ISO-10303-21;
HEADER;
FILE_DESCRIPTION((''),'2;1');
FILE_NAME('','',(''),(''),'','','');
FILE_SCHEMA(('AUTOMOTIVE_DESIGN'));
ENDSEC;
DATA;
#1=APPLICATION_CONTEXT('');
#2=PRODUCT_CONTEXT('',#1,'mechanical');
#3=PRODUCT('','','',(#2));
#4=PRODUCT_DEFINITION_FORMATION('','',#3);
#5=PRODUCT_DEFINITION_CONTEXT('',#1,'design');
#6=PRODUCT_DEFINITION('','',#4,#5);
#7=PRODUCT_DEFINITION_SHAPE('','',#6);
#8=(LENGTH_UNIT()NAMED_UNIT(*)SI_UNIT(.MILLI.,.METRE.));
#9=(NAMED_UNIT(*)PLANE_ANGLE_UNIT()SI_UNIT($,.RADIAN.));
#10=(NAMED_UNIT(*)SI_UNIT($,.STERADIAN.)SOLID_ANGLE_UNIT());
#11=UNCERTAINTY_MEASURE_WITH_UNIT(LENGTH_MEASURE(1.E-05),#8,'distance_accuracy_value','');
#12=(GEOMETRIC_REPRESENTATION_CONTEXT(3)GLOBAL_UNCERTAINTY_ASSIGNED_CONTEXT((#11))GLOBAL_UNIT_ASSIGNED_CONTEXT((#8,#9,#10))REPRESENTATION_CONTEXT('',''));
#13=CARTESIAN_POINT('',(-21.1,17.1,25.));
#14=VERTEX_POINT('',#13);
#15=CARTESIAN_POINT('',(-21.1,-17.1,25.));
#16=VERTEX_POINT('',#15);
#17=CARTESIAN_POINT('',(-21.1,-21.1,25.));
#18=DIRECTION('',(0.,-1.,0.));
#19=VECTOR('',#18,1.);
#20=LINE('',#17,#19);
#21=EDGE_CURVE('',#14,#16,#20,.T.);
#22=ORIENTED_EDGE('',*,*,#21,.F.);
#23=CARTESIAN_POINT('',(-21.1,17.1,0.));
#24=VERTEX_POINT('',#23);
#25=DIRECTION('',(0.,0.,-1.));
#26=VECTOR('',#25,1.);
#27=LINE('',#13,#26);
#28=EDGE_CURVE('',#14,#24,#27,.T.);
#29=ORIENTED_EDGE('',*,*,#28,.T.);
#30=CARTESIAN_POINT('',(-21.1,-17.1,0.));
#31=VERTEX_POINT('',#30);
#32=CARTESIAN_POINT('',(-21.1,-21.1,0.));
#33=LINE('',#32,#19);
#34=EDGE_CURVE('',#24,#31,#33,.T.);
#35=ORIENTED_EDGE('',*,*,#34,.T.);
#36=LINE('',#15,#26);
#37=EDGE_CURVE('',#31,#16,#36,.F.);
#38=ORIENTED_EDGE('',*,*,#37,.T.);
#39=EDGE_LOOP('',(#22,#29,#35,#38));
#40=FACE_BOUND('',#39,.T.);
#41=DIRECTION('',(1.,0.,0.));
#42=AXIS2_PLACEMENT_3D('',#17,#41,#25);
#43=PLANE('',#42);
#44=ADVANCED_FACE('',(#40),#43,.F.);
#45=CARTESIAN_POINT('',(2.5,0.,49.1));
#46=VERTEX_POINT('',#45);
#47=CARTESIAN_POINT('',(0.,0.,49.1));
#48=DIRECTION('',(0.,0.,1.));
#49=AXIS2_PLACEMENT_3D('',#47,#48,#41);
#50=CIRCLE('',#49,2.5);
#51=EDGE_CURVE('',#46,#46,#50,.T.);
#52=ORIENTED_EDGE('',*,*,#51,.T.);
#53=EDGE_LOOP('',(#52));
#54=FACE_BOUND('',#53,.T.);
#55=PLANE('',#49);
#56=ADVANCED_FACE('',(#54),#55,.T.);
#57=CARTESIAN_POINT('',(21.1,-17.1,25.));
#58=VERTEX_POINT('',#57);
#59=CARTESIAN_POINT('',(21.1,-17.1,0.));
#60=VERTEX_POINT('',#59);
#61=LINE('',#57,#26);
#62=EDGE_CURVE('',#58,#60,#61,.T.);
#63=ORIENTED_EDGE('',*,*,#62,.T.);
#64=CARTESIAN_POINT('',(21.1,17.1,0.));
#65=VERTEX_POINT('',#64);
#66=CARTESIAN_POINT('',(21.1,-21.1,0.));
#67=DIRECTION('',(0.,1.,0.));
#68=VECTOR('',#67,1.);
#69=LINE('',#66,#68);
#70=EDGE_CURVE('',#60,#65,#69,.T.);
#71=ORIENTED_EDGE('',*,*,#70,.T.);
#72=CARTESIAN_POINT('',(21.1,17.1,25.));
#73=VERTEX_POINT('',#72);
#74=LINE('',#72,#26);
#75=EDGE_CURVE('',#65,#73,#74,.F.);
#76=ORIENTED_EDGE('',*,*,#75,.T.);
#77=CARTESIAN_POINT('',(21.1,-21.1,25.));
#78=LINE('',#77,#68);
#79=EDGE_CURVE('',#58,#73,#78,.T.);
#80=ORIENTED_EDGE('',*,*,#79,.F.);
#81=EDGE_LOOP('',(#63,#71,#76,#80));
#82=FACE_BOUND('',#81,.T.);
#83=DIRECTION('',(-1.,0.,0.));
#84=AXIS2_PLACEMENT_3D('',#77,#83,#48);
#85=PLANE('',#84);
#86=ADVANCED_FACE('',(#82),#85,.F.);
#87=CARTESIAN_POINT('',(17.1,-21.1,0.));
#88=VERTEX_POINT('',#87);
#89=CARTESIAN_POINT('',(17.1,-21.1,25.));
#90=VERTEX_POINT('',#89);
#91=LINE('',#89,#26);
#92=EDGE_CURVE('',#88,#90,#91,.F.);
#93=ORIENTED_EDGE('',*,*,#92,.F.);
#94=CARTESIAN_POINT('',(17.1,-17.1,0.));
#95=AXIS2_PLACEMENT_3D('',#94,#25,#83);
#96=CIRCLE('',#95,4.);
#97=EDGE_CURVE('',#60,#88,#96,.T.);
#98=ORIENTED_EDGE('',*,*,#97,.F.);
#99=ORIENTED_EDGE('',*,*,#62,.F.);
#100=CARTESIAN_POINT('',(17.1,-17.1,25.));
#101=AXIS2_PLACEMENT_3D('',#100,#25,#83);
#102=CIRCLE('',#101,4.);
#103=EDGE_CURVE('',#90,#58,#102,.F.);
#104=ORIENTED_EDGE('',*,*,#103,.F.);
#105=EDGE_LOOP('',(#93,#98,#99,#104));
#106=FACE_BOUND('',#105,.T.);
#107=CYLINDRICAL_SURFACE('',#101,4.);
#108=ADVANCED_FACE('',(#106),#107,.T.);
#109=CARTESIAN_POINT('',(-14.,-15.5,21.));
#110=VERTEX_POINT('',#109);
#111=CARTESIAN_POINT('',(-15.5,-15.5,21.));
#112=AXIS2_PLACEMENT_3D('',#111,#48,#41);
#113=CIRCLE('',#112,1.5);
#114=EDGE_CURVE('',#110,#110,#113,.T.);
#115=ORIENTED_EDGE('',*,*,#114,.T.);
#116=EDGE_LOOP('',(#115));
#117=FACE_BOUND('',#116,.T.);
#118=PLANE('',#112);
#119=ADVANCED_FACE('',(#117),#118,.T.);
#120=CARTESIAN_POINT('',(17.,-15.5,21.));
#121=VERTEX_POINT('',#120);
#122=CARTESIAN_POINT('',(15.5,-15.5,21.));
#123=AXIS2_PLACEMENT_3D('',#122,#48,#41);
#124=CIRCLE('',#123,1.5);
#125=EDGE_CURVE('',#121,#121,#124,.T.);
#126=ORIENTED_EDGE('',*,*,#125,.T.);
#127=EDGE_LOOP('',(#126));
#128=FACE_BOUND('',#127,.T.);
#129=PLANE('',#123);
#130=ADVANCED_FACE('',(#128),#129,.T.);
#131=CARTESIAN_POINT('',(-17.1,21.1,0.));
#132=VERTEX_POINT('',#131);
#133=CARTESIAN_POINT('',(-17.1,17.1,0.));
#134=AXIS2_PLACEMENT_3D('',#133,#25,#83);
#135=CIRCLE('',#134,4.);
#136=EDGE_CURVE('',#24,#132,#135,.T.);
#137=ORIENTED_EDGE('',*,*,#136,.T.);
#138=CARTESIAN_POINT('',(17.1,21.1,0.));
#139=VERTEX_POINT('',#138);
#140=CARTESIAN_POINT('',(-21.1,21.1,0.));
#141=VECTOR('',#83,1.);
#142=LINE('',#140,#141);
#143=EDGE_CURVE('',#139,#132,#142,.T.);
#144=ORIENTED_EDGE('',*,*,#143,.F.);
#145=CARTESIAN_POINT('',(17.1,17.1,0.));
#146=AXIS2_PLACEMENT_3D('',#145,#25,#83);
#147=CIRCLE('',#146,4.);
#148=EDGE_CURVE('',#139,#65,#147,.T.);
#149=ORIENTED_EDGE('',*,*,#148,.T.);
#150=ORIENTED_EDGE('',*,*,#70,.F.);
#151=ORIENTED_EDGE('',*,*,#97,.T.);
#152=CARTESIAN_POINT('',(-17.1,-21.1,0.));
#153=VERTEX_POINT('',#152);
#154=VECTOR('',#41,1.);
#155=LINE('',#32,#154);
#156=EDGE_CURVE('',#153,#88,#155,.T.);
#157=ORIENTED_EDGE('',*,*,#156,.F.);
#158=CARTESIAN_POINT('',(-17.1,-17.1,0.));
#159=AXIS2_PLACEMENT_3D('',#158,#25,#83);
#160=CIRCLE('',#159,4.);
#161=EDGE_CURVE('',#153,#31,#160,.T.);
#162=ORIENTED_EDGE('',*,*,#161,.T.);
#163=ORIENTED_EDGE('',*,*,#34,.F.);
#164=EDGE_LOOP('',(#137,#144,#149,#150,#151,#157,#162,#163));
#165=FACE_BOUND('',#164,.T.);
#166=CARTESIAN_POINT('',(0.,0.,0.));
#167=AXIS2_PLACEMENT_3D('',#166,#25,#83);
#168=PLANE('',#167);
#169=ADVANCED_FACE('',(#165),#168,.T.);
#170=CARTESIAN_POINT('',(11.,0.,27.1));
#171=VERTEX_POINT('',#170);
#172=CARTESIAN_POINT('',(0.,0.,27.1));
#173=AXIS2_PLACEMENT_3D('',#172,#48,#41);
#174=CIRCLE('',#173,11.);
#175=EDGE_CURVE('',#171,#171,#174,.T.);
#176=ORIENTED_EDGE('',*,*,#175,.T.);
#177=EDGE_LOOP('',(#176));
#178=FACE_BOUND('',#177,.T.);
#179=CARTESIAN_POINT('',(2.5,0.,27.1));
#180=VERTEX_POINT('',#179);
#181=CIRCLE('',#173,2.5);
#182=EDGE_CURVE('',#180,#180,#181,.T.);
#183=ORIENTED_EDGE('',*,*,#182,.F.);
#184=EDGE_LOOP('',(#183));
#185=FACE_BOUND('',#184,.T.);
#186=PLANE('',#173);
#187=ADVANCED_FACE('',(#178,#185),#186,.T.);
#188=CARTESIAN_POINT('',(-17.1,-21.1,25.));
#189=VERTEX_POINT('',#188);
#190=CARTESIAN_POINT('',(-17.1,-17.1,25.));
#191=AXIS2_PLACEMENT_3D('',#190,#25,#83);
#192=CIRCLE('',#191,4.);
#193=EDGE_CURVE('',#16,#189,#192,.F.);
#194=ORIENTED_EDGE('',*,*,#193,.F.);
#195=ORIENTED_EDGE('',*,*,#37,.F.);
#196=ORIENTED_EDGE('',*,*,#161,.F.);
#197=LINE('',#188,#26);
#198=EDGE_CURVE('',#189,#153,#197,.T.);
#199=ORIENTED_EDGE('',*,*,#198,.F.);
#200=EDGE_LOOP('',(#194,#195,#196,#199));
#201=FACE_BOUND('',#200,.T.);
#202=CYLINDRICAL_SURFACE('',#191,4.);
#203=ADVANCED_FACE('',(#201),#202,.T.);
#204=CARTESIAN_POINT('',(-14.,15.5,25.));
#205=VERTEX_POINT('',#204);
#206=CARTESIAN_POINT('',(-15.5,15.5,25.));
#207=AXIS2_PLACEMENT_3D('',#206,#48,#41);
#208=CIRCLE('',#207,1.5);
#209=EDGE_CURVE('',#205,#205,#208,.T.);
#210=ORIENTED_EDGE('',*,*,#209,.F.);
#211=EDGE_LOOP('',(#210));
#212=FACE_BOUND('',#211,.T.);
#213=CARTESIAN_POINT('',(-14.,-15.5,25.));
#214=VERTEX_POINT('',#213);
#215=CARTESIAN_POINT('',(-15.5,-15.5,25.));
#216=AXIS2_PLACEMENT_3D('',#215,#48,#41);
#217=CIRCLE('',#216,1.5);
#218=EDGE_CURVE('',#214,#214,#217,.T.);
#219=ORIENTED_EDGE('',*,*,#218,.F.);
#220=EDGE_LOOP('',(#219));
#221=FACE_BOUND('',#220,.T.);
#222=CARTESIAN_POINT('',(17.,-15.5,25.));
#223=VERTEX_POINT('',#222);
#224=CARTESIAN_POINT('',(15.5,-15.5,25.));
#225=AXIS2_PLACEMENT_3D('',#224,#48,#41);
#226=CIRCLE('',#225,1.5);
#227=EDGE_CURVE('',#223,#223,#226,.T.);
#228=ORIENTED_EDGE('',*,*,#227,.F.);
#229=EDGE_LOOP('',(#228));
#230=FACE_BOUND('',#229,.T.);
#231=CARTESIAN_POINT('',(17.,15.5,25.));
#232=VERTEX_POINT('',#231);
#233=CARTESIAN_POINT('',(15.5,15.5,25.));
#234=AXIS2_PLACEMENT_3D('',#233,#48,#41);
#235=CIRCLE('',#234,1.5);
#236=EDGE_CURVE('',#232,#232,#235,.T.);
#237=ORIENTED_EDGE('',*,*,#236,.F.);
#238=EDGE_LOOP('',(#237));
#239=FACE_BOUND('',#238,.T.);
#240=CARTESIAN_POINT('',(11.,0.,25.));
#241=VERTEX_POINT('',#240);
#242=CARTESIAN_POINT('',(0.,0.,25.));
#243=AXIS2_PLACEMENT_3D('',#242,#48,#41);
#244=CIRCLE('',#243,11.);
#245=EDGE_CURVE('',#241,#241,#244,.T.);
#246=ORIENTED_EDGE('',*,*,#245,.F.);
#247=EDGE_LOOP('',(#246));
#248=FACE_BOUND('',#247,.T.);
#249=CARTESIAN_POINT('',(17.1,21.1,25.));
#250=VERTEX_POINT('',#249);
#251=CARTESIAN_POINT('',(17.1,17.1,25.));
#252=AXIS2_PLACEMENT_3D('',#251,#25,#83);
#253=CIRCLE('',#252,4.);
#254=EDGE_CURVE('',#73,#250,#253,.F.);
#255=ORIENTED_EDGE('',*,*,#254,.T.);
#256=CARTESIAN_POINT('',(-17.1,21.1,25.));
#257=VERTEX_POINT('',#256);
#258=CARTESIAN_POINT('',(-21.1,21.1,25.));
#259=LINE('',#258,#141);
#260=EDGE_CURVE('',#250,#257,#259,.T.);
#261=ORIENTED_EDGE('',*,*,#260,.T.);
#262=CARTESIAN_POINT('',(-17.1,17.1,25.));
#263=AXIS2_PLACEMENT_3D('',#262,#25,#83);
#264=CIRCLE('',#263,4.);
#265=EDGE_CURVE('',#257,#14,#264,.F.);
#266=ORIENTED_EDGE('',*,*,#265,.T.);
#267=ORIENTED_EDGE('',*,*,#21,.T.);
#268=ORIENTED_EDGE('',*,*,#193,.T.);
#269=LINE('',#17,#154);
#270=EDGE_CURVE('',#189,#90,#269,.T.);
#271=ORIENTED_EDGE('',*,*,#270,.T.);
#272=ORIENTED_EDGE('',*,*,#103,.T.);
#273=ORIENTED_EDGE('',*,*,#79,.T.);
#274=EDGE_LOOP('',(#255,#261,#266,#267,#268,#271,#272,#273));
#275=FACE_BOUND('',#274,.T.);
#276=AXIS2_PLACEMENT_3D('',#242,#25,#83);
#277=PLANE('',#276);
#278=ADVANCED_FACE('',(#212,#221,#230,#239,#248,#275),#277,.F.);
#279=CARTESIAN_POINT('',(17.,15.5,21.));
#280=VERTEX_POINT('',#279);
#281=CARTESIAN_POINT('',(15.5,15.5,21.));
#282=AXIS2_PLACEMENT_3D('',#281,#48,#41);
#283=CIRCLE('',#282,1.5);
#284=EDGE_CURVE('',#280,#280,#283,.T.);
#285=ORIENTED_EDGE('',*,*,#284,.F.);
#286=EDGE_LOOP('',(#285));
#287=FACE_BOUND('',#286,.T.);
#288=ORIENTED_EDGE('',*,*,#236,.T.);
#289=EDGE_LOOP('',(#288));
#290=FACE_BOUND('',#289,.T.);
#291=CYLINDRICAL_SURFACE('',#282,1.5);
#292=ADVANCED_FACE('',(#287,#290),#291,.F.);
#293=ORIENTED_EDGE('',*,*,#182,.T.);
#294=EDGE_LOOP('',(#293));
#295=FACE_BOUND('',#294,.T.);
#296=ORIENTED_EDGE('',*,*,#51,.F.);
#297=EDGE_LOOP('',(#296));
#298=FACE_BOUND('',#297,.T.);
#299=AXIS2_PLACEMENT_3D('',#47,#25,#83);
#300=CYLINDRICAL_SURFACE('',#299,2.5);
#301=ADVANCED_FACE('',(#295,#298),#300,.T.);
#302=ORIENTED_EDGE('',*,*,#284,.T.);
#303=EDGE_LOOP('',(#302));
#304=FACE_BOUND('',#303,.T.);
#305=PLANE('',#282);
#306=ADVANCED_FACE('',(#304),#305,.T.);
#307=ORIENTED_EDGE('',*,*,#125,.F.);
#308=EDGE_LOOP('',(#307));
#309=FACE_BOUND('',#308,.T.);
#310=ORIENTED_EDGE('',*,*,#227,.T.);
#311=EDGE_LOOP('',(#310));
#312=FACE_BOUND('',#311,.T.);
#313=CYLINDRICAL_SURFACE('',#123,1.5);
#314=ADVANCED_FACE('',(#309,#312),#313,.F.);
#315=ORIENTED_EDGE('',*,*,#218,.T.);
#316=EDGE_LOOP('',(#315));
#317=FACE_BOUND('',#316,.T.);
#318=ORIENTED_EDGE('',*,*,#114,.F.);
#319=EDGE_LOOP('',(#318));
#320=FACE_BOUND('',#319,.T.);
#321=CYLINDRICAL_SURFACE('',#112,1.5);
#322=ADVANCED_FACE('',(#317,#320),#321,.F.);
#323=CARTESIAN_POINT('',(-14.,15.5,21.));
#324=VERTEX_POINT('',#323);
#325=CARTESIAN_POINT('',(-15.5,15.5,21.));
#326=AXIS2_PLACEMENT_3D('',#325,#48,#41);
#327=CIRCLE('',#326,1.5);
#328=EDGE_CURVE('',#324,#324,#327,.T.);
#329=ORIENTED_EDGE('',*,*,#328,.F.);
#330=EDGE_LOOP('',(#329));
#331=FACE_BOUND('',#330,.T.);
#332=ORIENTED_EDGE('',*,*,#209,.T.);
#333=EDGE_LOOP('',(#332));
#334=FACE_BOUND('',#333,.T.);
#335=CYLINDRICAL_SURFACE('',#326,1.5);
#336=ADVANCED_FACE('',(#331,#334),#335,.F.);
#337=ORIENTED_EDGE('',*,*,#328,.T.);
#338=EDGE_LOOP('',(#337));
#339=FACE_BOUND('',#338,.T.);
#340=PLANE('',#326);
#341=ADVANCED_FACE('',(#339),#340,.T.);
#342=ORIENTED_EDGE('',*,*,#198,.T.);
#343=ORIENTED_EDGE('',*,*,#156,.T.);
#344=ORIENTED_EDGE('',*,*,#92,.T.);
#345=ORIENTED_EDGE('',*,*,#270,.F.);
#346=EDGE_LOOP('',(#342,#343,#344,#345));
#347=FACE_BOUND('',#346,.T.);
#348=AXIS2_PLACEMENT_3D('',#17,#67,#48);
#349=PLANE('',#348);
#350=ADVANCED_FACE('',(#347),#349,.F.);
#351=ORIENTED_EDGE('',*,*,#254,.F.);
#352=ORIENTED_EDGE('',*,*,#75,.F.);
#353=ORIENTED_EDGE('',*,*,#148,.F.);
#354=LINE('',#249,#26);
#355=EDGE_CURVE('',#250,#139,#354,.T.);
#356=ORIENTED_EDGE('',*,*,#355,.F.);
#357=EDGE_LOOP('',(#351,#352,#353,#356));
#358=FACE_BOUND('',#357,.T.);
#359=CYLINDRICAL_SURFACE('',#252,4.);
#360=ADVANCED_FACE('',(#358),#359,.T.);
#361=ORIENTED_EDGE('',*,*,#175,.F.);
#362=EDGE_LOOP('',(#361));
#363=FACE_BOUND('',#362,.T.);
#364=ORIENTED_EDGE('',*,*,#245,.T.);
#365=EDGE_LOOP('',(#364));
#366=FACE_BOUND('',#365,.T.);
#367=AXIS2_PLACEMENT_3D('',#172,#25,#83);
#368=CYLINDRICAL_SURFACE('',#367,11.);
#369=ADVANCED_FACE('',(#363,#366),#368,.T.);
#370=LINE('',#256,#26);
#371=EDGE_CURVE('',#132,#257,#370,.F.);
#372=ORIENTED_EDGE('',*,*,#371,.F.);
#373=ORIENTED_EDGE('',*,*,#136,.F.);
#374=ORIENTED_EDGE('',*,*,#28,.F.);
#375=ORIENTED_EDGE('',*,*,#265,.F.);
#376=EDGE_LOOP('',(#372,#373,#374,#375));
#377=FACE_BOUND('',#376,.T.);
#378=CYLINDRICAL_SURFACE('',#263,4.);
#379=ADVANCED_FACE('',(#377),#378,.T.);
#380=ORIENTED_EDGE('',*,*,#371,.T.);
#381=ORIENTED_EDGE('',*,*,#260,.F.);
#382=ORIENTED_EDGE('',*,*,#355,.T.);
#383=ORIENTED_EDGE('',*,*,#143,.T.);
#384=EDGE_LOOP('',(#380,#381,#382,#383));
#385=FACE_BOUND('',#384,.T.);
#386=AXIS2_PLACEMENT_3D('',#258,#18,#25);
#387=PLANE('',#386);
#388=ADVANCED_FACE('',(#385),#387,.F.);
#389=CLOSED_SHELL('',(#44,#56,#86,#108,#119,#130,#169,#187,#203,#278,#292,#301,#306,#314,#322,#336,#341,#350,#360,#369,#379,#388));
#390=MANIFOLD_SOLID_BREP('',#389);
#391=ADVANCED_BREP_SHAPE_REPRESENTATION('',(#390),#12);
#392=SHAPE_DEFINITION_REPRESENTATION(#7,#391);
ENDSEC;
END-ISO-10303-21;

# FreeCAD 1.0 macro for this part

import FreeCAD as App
import Part
import Sketcher

V = App.Vector


def edges_at(feature, points):
    """Names of the edges that pass closest to the given points."""
    edges = feature.Shape.Edges
    near = lambda p: min(range(len(edges)), key=lambda i: edges[i].distToShape(Part.Vertex(*p))[0])
    return sorted({f"Edge{near(p) + 1}" for p in points})


def add_polygon(sketch, points):
    """Adds a closed chain of lines whose ends are joined by coincident constraints."""
    first, n = sketch.GeometryCount, len(points)
    for a, b in zip(points, points[1:] + points[:1]):
        sketch.addGeometry(Part.LineSegment(App.Vector(*a, 0), App.Vector(*b, 0)), False)
    for i in range(n):
        sketch.addConstraint(Sketcher.Constraint("Coincident", first + i, 2, first + (i + 1) % n, 1))

doc = App.newDocument("Part")
params = doc.addObject("Spreadsheet::Sheet", "Params")
for row, (alias, value) in enumerate([
    ("sketch1_width", "42.2 mm"),
    ("pad1_length", "25 mm"),
    ("sketch2_diameter", "22 mm"),
    ("pad2_length", "2.1 mm"),
    ("sketch3_diameter", "5 mm"),
    ("pad3_length", "22 mm"),
    ("sketch4_diameter", "3 mm"),
    ("pocket1_length", "4 mm"),
    ("fillet_radius", "4 mm"),
], start=1):
    params.set(f"A{row}", alias)
    params.set(f"B{row}", "=" + value)
    params.setAlias(f"B{row}", alias)

body = doc.addObject("PartDesign::Body", "Body")

sketch1 = body.newObject("Sketcher::SketchObject", "Sketch")
sketch1.AttachmentSupport = (doc.getObject("XY_Plane"), [""])
sketch1.MapMode = "FlatFace"
add_polygon(sketch1, [(-21, 21), (-21, -21), (21, -21), (21, 21)])
sketch1.addConstraint([
    Sketcher.Constraint("Vertical", 0),
    Sketcher.Constraint("Horizontal", 1),
    Sketcher.Constraint("Vertical", 2),
    Sketcher.Constraint("Horizontal", 3),
    Sketcher.Constraint("Symmetric", 0, 2, 2, 2, -1, 1),
    Sketcher.Constraint("Equal", 3, 0),
    Sketcher.Constraint("DistanceX", 1, 1, 1, 2, 42.2),
])
sketch1.setExpression("Constraints[10]", "Params.sketch1_width")
pad1 = body.newObject("PartDesign::Pad", "Pad")
pad1.Profile = sketch1
pad1.setExpression("Length", "Params.pad1_length")

sketch2 = body.newObject("Sketcher::SketchObject", "Sketch001")
sketch2.AttachmentSupport = (doc.getObject("XY_Plane"), [""])
sketch2.MapMode = "FlatFace"
sketch2.AttachmentOffset = App.Placement(V(0, 0, 25), App.Rotation())
sketch2.addGeometry(Part.Circle(V(0, 0, 0), V(0, 0, 1), 11), False)
sketch2.addConstraint([
    Sketcher.Constraint("Coincident", 0, 3, -1, 1),
    Sketcher.Constraint("Diameter", 0, 22.0),
])
sketch2.setExpression("Constraints[1]", "Params.sketch2_diameter")
pad2 = body.newObject("PartDesign::Pad", "Pad001")
pad2.Profile = sketch2
pad2.setExpression("Length", "Params.pad2_length")

sketch3 = body.newObject("Sketcher::SketchObject", "Sketch002")
sketch3.AttachmentSupport = (doc.getObject("XY_Plane"), [""])
sketch3.MapMode = "FlatFace"
sketch3.AttachmentOffset = App.Placement(V(0, 0, 27.1), App.Rotation())
sketch3.addGeometry(Part.Circle(V(0, 0, 0), V(0, 0, 1), 2.5), False)
sketch3.addConstraint([
    Sketcher.Constraint("Coincident", 0, 3, -1, 1),
    Sketcher.Constraint("Diameter", 0, 5.0),
])
sketch3.setExpression("Constraints[1]", "Params.sketch3_diameter")
pad3 = body.newObject("PartDesign::Pad", "Pad002")
pad3.Profile = sketch3
pad3.setExpression("Length", "Params.pad3_length")

sketch4 = body.newObject("Sketcher::SketchObject", "Sketch003")
sketch4.AttachmentSupport = (doc.getObject("XY_Plane"), [""])
sketch4.MapMode = "FlatFace"
sketch4.AttachmentOffset = App.Placement(V(0, 0, 25), App.Rotation())
sketch4.addGeometry([
    Part.Circle(V(-15.5, 15.5, 0), V(0, 0, 1), 1.5),
    Part.Circle(V(15.5, 15.5, 0), V(0, 0, 1), 1.5),
    Part.Circle(V(15.5, -15.5, 0), V(0, 0, 1), 1.5),
    Part.Circle(V(-15.5, -15.5, 0), V(0, 0, 1), 1.5),
], False)
sketch4.addConstraint([
    Sketcher.Constraint("Equal", 0, 1),
    Sketcher.Constraint("Equal", 1, 2),
    Sketcher.Constraint("Equal", 2, 3),
    Sketcher.Constraint("Symmetric", 0, 3, 2, 3, -1, 1),
    Sketcher.Constraint("Symmetric", 1, 3, 3, 3, -1, 1),
    Sketcher.Constraint("Symmetric", 0, 3, 1, 3, -2),
    Sketcher.Constraint("Diameter", 0, 3.0),
    Sketcher.Constraint("DistanceX", 0, 3, 1, 3, 31.0),
    Sketcher.Constraint("DistanceY", 2, 3, 1, 3, 31.0),
])
sketch4.setExpression("Constraints[6]", "Params.sketch4_diameter")
pocket1 = body.newObject("PartDesign::Pocket", "Pocket")
pocket1.Profile = sketch4
pocket1.setExpression("Length", "Params.pocket1_length")
doc.recompute()

fillet = body.newObject("PartDesign::Fillet", "Fillet")
fillet.Base = (pocket1, edges_at(pocket1, [
    (21.1, -21.1, 12.5),
    (-21.1, -21.1, 12.5),
    (-21.1, 21.1, 12.5),
    (21.1, 21.1, 12.5),
]))
fillet.setExpression("Radius", "Params.fillet_radius")

doc.recompute()
